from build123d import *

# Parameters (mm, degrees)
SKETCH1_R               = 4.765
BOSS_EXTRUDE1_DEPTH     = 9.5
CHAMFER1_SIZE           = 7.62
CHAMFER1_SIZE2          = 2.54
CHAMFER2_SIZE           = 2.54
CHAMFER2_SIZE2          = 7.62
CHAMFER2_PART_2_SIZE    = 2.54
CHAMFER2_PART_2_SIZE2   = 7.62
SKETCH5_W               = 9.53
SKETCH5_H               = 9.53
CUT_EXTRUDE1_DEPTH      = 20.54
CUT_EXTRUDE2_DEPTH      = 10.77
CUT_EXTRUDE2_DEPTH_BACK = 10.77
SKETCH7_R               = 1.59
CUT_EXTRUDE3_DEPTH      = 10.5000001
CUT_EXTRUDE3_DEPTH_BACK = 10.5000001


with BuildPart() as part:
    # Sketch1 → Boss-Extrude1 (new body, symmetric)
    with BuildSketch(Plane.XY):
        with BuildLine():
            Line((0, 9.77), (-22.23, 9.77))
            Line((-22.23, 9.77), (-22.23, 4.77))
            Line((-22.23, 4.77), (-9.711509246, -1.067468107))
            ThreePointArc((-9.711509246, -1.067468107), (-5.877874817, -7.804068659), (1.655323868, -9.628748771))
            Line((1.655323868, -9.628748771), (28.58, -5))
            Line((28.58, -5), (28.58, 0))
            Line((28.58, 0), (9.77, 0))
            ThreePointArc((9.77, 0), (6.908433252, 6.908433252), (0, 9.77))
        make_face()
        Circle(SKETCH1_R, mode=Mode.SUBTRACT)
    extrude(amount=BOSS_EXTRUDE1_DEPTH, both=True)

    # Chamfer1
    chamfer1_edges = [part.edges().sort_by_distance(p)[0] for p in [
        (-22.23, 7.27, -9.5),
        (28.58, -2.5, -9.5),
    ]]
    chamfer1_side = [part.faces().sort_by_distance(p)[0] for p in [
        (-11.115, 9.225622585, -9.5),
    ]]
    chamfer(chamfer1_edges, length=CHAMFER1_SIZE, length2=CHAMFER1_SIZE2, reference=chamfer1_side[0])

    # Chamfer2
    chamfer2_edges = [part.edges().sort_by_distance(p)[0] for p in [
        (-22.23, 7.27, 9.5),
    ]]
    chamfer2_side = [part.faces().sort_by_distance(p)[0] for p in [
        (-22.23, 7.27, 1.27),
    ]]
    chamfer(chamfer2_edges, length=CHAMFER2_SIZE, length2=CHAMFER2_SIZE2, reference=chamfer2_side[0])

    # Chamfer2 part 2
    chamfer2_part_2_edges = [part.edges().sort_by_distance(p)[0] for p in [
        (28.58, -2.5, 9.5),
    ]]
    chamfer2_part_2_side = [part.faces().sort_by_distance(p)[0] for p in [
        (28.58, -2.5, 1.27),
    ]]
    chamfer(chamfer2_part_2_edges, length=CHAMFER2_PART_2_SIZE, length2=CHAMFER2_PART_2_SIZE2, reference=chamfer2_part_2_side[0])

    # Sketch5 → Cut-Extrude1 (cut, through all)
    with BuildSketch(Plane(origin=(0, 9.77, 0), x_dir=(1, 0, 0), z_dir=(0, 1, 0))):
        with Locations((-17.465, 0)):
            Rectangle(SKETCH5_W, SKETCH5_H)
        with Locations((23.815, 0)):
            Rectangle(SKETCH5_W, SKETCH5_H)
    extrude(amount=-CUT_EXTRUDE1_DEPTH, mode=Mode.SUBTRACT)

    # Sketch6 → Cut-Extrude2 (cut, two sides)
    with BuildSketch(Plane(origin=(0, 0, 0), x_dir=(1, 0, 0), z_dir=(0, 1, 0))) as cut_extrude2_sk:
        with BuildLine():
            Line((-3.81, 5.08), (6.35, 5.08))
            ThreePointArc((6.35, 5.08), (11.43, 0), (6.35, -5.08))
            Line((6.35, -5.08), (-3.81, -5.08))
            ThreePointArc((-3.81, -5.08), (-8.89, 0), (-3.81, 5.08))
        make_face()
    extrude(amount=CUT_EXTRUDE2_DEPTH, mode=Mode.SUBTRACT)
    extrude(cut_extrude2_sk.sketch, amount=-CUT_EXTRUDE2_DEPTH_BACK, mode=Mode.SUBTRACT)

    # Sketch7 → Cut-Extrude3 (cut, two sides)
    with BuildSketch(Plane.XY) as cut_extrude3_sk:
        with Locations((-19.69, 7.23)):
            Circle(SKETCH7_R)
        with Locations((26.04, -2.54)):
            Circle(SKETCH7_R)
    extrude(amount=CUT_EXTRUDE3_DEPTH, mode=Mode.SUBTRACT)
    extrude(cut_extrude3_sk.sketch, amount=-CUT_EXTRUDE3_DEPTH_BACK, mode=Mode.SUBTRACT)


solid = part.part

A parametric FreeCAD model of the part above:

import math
import FreeCAD as App
import Part
import Sketcher

V = App.Vector
Q = App.Units.Quantity


def edges_at(feature, points):
    """Names of the edges that pass closest to the given points."""
    edges = feature.Shape.Edges
    near = lambda p: min(range(len(edges)), key=lambda i: edges[i].distToShape(Part.Vertex(*p))[0])
    return sorted({f"Edge{near(p) + 1}" for p in points})


def add_polygon(sketch, points):
    """Adds a closed chain of lines whose ends are joined by coincident constraints."""
    first, n = sketch.GeometryCount, len(points)
    for a, b in zip(points, points[1:] + points[:1]):
        sketch.addGeometry(Part.LineSegment(App.Vector(*a, 0), App.Vector(*b, 0)), False)
    for i in range(n):
        sketch.addConstraint(Sketcher.Constraint("Coincident", first + i, 2, first + (i + 1) % n, 1))

doc = App.newDocument("Part")
body = doc.addObject("PartDesign::Body", "Body")

# Sketch on XY plane
sketch1 = body.newObject("Sketcher::SketchObject", "Sketch")
sketch1.AttachmentSupport = (doc.getObject("XY_Plane"), [""])
sketch1.MapMode = "FlatFace"
sketch1.addGeometry(Part.LineSegment(V(0, 9.8, 0), V(-22.2, 9.8, 0)), False)
sketch1.addGeometry(Part.LineSegment(V(-22.2, 9.8, 0), V(-22.2, 4.8, 0)), False)
sketch1.addGeometry(Part.LineSegment(V(-22.2, 4.8, 0), V(-9.7, -1.1, 0)), False)
sketch1.addGeometry(Part.ArcOfCircle(Part.Circle(V(0, 0, 0), V(0, 0, 1), 9.8), math.radians(-174), math.radians(-80)), False)
sketch1.addGeometry(Part.LineSegment(V(1.7, -9.6, 0), V(28.6, -5, 0)), False)
sketch1.addGeometry(Part.LineSegment(V(28.6, -5, 0), V(28.6, 0, 0)), False)
sketch1.addGeometry(Part.LineSegment(V(28.6, 0, 0), V(9.8, 0, 0)), False)
sketch1.addGeometry(Part.ArcOfCircle(Part.Circle(V(0, 0, 0), V(0, 0, 1), 9.8), math.radians(0), math.radians(90)), False)
sketch1.addGeometry(Part.Circle(V(0, 0, 0), V(0, 0, 1), 4.8), False)
sketch1.addConstraint(Sketcher.Constraint("Coincident", 0, 2, 1, 1))
sketch1.addConstraint(Sketcher.Constraint("Coincident", 1, 2, 2, 1))
sketch1.addConstraint(Sketcher.Constraint("Coincident", 2, 2, 3, 1))
sketch1.addConstraint(Sketcher.Constraint("Tangent", 3, 2, 4, 1))
sketch1.addConstraint(Sketcher.Constraint("Coincident", 4, 2, 5, 1))
sketch1.addConstraint(Sketcher.Constraint("Coincident", 5, 2, 6, 1))
sketch1.addConstraint(Sketcher.Constraint("Coincident", 6, 2, 7, 1))
sketch1.addConstraint(Sketcher.Constraint("Tangent", 7, 2, 0, 1))
sketch1.addConstraint(Sketcher.Constraint("Horizontal", 0))
sketch1.addConstraint(Sketcher.Constraint("Vertical", 1))
sketch1.addConstraint(Sketcher.Constraint("Vertical", 5))
sketch1.addConstraint(Sketcher.Constraint("Horizontal", 6))
sketch1.addConstraint(Sketcher.Constraint("Coincident", 3, 3, -1, 1))
sketch1.addConstraint(Sketcher.Constraint("Coincident", 7, 3, -1, 1))
sketch1.addConstraint(Sketcher.Constraint("Coincident", 8, 3, -1, 1))
sketch1.addConstraint(Sketcher.Constraint("Equal", 3, 7))
sketch1.addConstraint(Sketcher.Constraint("PointOnObject", 5, 2, -1))
sketch1.addConstraint(Sketcher.Constraint("Equal", 1, 5))
sketch1.addConstraint(Sketcher.Constraint("Diameter", 8, 9.53))
sketch1.addConstraint(Sketcher.Constraint("DistanceY", 1, 2, 1, 1, 5.0))
sketch1.addConstraint(Sketcher.Constraint("Angle", 2, Q("-25 deg")))
sketch1.addConstraint(Sketcher.Constraint("Radius", 3, 9.77))
sketch1.addConstraint(Sketcher.Constraint("DistanceX", 0, 2, 0, 1, 22.23))
sketch1.addConstraint(Sketcher.Constraint("DistanceX", 6, 2, 6, 1, 18.81))
pad1 = body.newObject("PartDesign::Pad", "Pad")
pad1.Profile = sketch1
pad1.Length = 19
pad1.Midplane = True
doc.recompute()

chamfer = body.newObject("PartDesign::Chamfer", "Chamfer")
chamfer.Base = (pad1, edges_at(pad1, [(-22.23, 7.27, -9.5), (28.58, -2.5, -9.5)]))
chamfer.ChamferType = "Two distances"
chamfer.Size = 7.62
chamfer.Size2 = 2.54
chamfer.FlipDirection = True
doc.recompute()

chamfer2 = body.newObject("PartDesign::Chamfer", "Chamfer001")
chamfer2.Base = (chamfer, edges_at(chamfer, [(-22.23, 7.27, 9.5)]))
chamfer2.ChamferType = "Two distances"
chamfer2.Size = 2.54
chamfer2.Size2 = 7.62
doc.recompute()

chamfer3 = body.newObject("PartDesign::Chamfer", "Chamfer002")
chamfer3.Base = (chamfer2, edges_at(chamfer2, [(28.58, -2.5, 9.5)]))
chamfer3.ChamferType = "Two distances"
chamfer3.Size = 2.54
chamfer3.Size2 = 7.62
chamfer3.FlipDirection = True

# Sketch on XZ plane
sketch2 = body.newObject("Sketcher::SketchObject", "Sketch001")
sketch2.AttachmentSupport = (doc.getObject("XZ_Plane"), [""])
sketch2.MapMode = "FlatFace"
sketch2.AttachmentOffset = App.Placement(V(0, 0, -9.77), App.Rotation())
add_polygon(sketch2, [(-22, -5), (-22, 5), (-13, 5), (-13, -5)])  # lines 0-3
add_polygon(sketch2, [(19, -5), (19, 5), (29, 5), (29, -5)])  # lines 4-7
sketch2.addConstraint(Sketcher.Constraint("Vertical", 0))
sketch2.addConstraint(Sketcher.Constraint("Horizontal", 1))
sketch2.addConstraint(Sketcher.Constraint("Vertical", 2))
sketch2.addConstraint(Sketcher.Constraint("Horizontal", 3))
sketch2.addConstraint(Sketcher.Constraint("Vertical", 4))
sketch2.addConstraint(Sketcher.Constraint("Horizontal", 5))
sketch2.addConstraint(Sketcher.Constraint("Vertical", 6))
sketch2.addConstraint(Sketcher.Constraint("Horizontal", 7))
sketch2.addConstraint(Sketcher.Constraint("Horizontal", 1, 2, 4, 2))
sketch2.addConstraint(Sketcher.Constraint("Horizontal", 3, 2, 6, 2))
sketch2.addConstraint(Sketcher.Constraint("Equal", 3, 5))
sketch2.addConstraint(Sketcher.Constraint("Equal", 7, 0))
sketch2.addConstraint(Sketcher.Constraint("DistanceX", 1, 1, 1, 2, 9.53))
sketch2.addConstraint(Sketcher.Constraint("DistanceX", 1, 2, -1, 1, 12.7))
sketch2.addConstraint(Sketcher.Constraint("DistanceX", -1, 1, 4, 2, 19.05))
sketch2.addConstraint(Sketcher.Constraint("DistanceY", -1, 1, 0, 2, 4.765))
pocket1 = body.newObject("PartDesign::Pocket", "Pocket")
pocket1.Profile = sketch2
pocket1.Type = "ThroughAll"
pocket1.Reversed = True

# Sketch on XZ plane
sketch3 = body.newObject("Sketcher::SketchObject", "Sketch002")
sketch3.AttachmentSupport = (doc.getObject("XZ_Plane"), [""])
sketch3.MapMode = "FlatFace"
sketch3.addGeometry(Part.LineSegment(V(6, -5, 0), V(-4, -5, 0)), False)
sketch3.addGeometry(Part.ArcOfCircle(Part.Circle(V(-4, 0, 0), V(0, 0, 1), 5), math.radians(90), math.radians(270)), False)
sketch3.addGeometry(Part.LineSegment(V(-4, 5, 0), V(6, 5, 0)), False)
sketch3.addGeometry(Part.ArcOfCircle(Part.Circle(V(6, 0, 0), V(0, 0, 1), 5), math.radians(-90), math.radians(90)), False)
sketch3.addConstraint(Sketcher.Constraint("Tangent", 0, 2, 1, 2))
sketch3.addConstraint(Sketcher.Constraint("Tangent", 1, 1, 2, 1))
sketch3.addConstraint(Sketcher.Constraint("Tangent", 2, 2, 3, 2))
sketch3.addConstraint(Sketcher.Constraint("Tangent", 3, 1, 0, 1))
sketch3.addConstraint(Sketcher.Constraint("Horizontal", 0))
sketch3.addConstraint(Sketcher.Constraint("Horizontal", 2))
sketch3.addConstraint(Sketcher.Constraint("PointOnObject", 1, 3, -1))
sketch3.addConstraint(Sketcher.Constraint("Radius", 1, 5.08))
sketch3.addConstraint(Sketcher.Constraint("DistanceX", 0, 2, 0, 1, 10.16))
sketch3.addConstraint(Sketcher.Constraint("DistanceX", 1, 3, -1, 1, 3.81))
pocket2 = body.newObject("PartDesign::Pocket", "Pocket001")
pocket2.Profile = sketch3
pocket2.Type = "ThroughAll"
pocket2.Midplane = True

# Sketch on XY plane
sketch4 = body.newObject("Sketcher::SketchObject", "Sketch003")
sketch4.AttachmentSupport = (doc.getObject("XY_Plane"), [""])
sketch4.MapMode = "FlatFace"
sketch4.addGeometry(Part.Circle(V(-19.7, 7.2, 0), V(0, 0, 1), 1.6), False)
sketch4.addGeometry(Part.Circle(V(26, -2.5, 0), V(0, 0, 1), 1.6), False)
sketch4.addConstraint(Sketcher.Constraint("Equal", 0, 1))
sketch4.addConstraint(Sketcher.Constraint("Diameter", 0, 3.18))
sketch4.addConstraint(Sketcher.Constraint("DistanceX", 0, 3, -1, 1, 19.69))
sketch4.addConstraint(Sketcher.Constraint("DistanceY", -1, 1, 0, 3, 7.23))
sketch4.addConstraint(Sketcher.Constraint("DistanceX", -1, 1, 1, 3, 26.04))
sketch4.addConstraint(Sketcher.Constraint("DistanceY", 1, 3, -1, 1, 2.54))
pocket3 = body.newObject("PartDesign::Pocket", "Pocket002")
pocket3.Profile = sketch4
pocket3.Type = "ThroughAll"
pocket3.Midplane = True

doc.recompute()
